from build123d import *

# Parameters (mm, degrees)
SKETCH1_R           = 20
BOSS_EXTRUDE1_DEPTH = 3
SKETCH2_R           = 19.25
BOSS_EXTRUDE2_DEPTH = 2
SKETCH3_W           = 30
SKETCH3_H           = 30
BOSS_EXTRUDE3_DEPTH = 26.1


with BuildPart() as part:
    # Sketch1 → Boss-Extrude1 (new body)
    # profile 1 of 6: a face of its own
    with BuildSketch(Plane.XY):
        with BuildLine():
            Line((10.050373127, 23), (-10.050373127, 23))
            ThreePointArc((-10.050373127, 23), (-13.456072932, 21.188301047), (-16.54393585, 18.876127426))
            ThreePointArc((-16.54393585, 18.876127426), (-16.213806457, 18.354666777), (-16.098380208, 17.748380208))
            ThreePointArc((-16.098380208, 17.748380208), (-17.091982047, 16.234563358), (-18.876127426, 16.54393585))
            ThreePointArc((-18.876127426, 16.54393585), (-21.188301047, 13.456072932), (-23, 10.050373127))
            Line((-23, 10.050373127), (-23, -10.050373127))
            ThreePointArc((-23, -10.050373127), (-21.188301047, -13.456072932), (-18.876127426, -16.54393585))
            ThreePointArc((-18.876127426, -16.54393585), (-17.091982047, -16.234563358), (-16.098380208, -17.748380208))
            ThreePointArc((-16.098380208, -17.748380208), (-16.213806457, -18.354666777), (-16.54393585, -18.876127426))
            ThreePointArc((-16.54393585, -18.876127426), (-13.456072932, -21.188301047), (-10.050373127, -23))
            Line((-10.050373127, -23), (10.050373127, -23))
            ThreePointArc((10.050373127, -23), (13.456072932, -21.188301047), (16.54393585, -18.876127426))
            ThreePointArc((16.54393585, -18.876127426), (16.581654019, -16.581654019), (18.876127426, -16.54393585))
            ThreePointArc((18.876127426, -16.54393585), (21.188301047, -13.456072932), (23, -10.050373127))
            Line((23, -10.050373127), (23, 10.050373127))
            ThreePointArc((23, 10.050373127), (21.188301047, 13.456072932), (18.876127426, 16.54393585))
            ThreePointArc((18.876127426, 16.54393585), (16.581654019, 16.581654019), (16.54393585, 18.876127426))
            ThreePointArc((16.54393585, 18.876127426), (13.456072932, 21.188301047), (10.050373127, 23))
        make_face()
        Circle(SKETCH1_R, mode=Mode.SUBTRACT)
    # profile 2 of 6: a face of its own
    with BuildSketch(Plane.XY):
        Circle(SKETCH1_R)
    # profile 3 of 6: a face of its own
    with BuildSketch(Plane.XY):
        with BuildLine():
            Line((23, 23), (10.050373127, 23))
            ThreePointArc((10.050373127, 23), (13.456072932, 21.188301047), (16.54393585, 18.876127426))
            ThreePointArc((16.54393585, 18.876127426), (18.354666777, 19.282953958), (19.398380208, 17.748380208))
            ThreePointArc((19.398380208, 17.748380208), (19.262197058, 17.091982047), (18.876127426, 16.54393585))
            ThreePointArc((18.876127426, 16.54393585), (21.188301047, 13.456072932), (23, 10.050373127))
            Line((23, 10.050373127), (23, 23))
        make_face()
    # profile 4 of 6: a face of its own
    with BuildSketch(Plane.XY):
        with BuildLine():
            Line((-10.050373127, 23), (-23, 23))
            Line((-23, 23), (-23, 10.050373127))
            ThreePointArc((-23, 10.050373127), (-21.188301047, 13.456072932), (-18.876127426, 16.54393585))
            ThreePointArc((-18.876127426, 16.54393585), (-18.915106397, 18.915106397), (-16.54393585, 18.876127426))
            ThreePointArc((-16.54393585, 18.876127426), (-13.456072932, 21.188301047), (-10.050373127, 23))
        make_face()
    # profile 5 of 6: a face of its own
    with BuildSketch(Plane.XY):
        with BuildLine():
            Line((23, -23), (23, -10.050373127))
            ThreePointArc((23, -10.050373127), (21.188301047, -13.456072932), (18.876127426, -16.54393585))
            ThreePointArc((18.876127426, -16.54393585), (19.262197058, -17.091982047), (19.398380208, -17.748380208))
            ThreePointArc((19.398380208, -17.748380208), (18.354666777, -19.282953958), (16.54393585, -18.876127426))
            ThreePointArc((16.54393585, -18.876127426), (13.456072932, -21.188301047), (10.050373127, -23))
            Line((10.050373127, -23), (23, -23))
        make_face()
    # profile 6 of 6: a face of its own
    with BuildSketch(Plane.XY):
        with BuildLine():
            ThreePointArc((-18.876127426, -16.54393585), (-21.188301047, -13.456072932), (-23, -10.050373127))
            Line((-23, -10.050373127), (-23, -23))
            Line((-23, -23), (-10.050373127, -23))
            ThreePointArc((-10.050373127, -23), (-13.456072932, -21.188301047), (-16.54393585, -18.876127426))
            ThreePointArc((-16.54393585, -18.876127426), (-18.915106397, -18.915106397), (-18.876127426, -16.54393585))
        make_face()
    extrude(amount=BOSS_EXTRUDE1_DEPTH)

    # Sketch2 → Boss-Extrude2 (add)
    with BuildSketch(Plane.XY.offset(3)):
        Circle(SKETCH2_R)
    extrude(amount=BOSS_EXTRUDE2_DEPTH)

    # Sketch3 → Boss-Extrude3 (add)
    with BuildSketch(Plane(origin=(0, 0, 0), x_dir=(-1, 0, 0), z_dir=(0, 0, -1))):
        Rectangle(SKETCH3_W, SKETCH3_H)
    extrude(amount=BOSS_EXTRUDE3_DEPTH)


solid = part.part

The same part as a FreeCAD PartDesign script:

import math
import FreeCAD as App
import Part
import Sketcher
Q = App.Units.Quantity

doc = App.newDocument("Part")
body = doc.addObject("PartDesign::Body", "Body")

# Sketch on XY plane
sketch1 = doc.addObject("Sketcher::SketchObject", "Sketch")
body.addObject(sketch1)
sketch1.AttachmentSupport = (doc.XY_Plane, [""])
sketch1.MapMode = "FlatFace"
sketch1.addGeometry([
    Part.LineSegment(App.Vector(-23, 23, 0), App.Vector(-23, -23, 0)),  # 0
    Part.LineSegment(App.Vector(-23, -23, 0), App.Vector(23, -23, 0)),  # 1
    Part.LineSegment(App.Vector(23, -23, 0), App.Vector(23, 23, 0)),  # 2
    Part.LineSegment(App.Vector(23, 23, 0), App.Vector(-23, 23, 0)),  # 3
    Part.ArcOfCircle(Part.Circle(App.Vector(17.7, 17.7, 0), App.Vector(0, 0, 1), 1.6), math.radians(137), math.radians(313)),  # 4
    Part.ArcOfCircle(Part.Circle(App.Vector(17.7, 17.7, 0), App.Vector(0, 0, 1), 1.6), math.radians(0), math.radians(137)),  # 5
    Part.ArcOfCircle(Part.Circle(App.Vector(17.7, 17.7, 0), App.Vector(0, 0, 1), 1.6), math.radians(-47), math.radians(0)),  # 6
    Part.ArcOfCircle(Part.Circle(App.Vector(-17.7, 17.7, 0), App.Vector(0, 0, 1), 1.6), math.radians(0), math.radians(43)),  # 7
    Part.ArcOfCircle(Part.Circle(App.Vector(-17.7, 17.7, 0), App.Vector(0, 0, 1), 1.6), math.radians(-133), math.radians(0)),  # 8
    Part.ArcOfCircle(Part.Circle(App.Vector(-17.7, 17.7, 0), App.Vector(0, 0, 1), 1.6), math.radians(43), math.radians(227)),  # 9
    Part.ArcOfCircle(Part.Circle(App.Vector(17.7, -17.7, 0), App.Vector(0, 0, 1), 1.6), math.radians(47), math.radians(223)),  # 10
    Part.ArcOfCircle(Part.Circle(App.Vector(17.7, -17.7, 0), App.Vector(0, 0, 1), 1.6), math.radians(0), math.radians(47)),  # 11
    Part.ArcOfCircle(Part.Circle(App.Vector(17.7, -17.7, 0), App.Vector(0, 0, 1), 1.6), math.radians(-137), math.radians(0)),  # 12
    Part.ArcOfCircle(Part.Circle(App.Vector(-17.7, -17.7, 0), App.Vector(0, 0, 1), 1.6), math.radians(0), math.radians(133)),  # 13
    Part.ArcOfCircle(Part.Circle(App.Vector(-17.7, -17.7, 0), App.Vector(0, 0, 1), 1.6), math.radians(-43), math.radians(0)),  # 14
    Part.ArcOfCircle(Part.Circle(App.Vector(-17.7, -17.7, 0), App.Vector(0, 0, 1), 1.6), math.radians(133), math.radians(317)),  # 15
], False)
sketch1.addConstraint([
    Sketcher.Constraint("Coincident", 0, 2, 1, 1),
    Sketcher.Constraint("Coincident", 1, 2, 2, 1),
    Sketcher.Constraint("Coincident", 2, 2, 3, 1),
    Sketcher.Constraint("Coincident", 3, 2, 0, 1),
    Sketcher.Constraint("Tangent", 4, 1, 5, 2),
    Sketcher.Constraint("Tangent", 5, 1, 6, 2),
    Sketcher.Constraint("Tangent", 6, 1, 4, 2),
    Sketcher.Constraint("Tangent", 7, 1, 8, 2),
    Sketcher.Constraint("Tangent", 8, 1, 9, 2),
    Sketcher.Constraint("Tangent", 9, 1, 7, 2),
    Sketcher.Constraint("Tangent", 10, 1, 11, 2),
    Sketcher.Constraint("Tangent", 11, 1, 12, 2),
    Sketcher.Constraint("Tangent", 12, 1, 10, 2),
    Sketcher.Constraint("Tangent", 13, 1, 14, 2),
    Sketcher.Constraint("Tangent", 14, 1, 15, 2),
    Sketcher.Constraint("Tangent", 15, 1, 13, 2),
    Sketcher.Constraint("Vertical", 0),
    Sketcher.Constraint("Horizontal", 1),
    Sketcher.Constraint("Vertical", 2),
    Sketcher.Constraint("Horizontal", 3),
    Sketcher.Constraint("Equal", 6, 7),
    Sketcher.Constraint("Equal", 9, 10),
    Sketcher.Constraint("Equal", 12, 13),
    Sketcher.Constraint("Symmetric", 7, 3, 10, 3, -1, 1),
    Sketcher.Constraint("Symmetric", 4, 3, 13, 3, -1, 1),
    Sketcher.Constraint("Symmetric", 0, 2, 2, 2, -1, 1),
    Sketcher.Constraint("Symmetric", 4, 3, 7, 3, -2),
    Sketcher.Constraint("Horizontal", 9, 3, 5, 1),
    Sketcher.Constraint("Horizontal", 5, 1, 7, 1),
    Sketcher.Constraint("Horizontal", 6, 1, 8, 1),
    Sketcher.Constraint("Horizontal", 4, 1, 9, 1),
    Sketcher.Constraint("Horizontal", 15, 3, 11, 1),
    Sketcher.Constraint("Horizontal", 11, 1, 13, 1),
    Sketcher.Constraint("Horizontal", 12, 1, 14, 1),
    Sketcher.Constraint("Horizontal", 10, 1, 15, 1),
    Sketcher.Constraint("Vertical", 6, 1, 10, 1),
    Sketcher.Constraint("Vertical", 4, 1, 12, 1),
    Sketcher.Constraint("Equal", 3, 0),
    Sketcher.Constraint("DistanceX", 1, 1, 1, 2, Q("46 mm")),
    Sketcher.Constraint("Radius", 4, Q("1.65 mm")),
    Sketcher.Constraint("DistanceX", -1, 1, 4, 3, Q("17.74838 mm")),
    Sketcher.Constraint("DistanceY", -1, 1, 4, 3, Q("17.74838 mm")),
    Sketcher.Constraint("DistanceX", 4, 1, 6, 1, Q("2.332192 mm")),
    Sketcher.Constraint("DistanceY", 6, 1, 4, 1, Q("2.332192 mm")),
])
pad1 = doc.addObject("PartDesign::Pad", "Pad")
body.addObject(pad1)
pad1.Profile = sketch1
pad1.Length = 3

# Sketch on XY plane
sketch2 = doc.addObject("Sketcher::SketchObject", "Sketch001")
body.addObject(sketch2)
sketch2.AttachmentSupport = (doc.XY_Plane, [""])
sketch2.MapMode = "FlatFace"
sketch2.AttachmentOffset = App.Placement(App.Vector(0, 0, 3), App.Rotation())
sketch2.addGeometry(Part.Circle(App.Vector(0, 0, 0), App.Vector(0, 0, 1), 19), False)
sketch2.addConstraint([
    Sketcher.Constraint("Coincident", 0, 3, -1, 1),
    Sketcher.Constraint("Diameter", 0, Q("38.5 mm")),
])
pad2 = doc.addObject("PartDesign::Pad", "Pad001")
body.addObject(pad2)
pad2.Profile = sketch2
pad2.Length = 2

# Sketch on XY plane
sketch3 = doc.addObject("Sketcher::SketchObject", "Sketch002")
body.addObject(sketch3)
sketch3.AttachmentSupport = (doc.XY_Plane, [""])
sketch3.MapMode = "FlatFace"
sketch3.addGeometry([
    Part.LineSegment(App.Vector(15, 15, 0), App.Vector(15, -15, 0)),
    Part.LineSegment(App.Vector(15, -15, 0), App.Vector(-15, -15, 0)),
    Part.LineSegment(App.Vector(-15, -15, 0), App.Vector(-15, 15, 0)),
    Part.LineSegment(App.Vector(-15, 15, 0), App.Vector(15, 15, 0)),
], False)
sketch3.addConstraint([
    Sketcher.Constraint("Coincident", 0, 2, 1, 1),
    Sketcher.Constraint("Coincident", 1, 2, 2, 1),
    Sketcher.Constraint("Coincident", 2, 2, 3, 1),
    Sketcher.Constraint("Coincident", 3, 2, 0, 1),
    Sketcher.Constraint("Vertical", 0),
    Sketcher.Constraint("Horizontal", 1),
    Sketcher.Constraint("Vertical", 2),
    Sketcher.Constraint("Horizontal", 3),
    Sketcher.Constraint("Symmetric", 0, 2, 2, 2, -1, 1),
    Sketcher.Constraint("Equal", 3, 0),
    Sketcher.Constraint("DistanceX", 1, 2, 1, 1, Q("30 mm")),
])
pad3 = doc.addObject("PartDesign::Pad", "Pad002")
body.addObject(pad3)
pad3.Profile = sketch3
pad3.Length = 26.1
pad3.Reversed = True

doc.recompute()
